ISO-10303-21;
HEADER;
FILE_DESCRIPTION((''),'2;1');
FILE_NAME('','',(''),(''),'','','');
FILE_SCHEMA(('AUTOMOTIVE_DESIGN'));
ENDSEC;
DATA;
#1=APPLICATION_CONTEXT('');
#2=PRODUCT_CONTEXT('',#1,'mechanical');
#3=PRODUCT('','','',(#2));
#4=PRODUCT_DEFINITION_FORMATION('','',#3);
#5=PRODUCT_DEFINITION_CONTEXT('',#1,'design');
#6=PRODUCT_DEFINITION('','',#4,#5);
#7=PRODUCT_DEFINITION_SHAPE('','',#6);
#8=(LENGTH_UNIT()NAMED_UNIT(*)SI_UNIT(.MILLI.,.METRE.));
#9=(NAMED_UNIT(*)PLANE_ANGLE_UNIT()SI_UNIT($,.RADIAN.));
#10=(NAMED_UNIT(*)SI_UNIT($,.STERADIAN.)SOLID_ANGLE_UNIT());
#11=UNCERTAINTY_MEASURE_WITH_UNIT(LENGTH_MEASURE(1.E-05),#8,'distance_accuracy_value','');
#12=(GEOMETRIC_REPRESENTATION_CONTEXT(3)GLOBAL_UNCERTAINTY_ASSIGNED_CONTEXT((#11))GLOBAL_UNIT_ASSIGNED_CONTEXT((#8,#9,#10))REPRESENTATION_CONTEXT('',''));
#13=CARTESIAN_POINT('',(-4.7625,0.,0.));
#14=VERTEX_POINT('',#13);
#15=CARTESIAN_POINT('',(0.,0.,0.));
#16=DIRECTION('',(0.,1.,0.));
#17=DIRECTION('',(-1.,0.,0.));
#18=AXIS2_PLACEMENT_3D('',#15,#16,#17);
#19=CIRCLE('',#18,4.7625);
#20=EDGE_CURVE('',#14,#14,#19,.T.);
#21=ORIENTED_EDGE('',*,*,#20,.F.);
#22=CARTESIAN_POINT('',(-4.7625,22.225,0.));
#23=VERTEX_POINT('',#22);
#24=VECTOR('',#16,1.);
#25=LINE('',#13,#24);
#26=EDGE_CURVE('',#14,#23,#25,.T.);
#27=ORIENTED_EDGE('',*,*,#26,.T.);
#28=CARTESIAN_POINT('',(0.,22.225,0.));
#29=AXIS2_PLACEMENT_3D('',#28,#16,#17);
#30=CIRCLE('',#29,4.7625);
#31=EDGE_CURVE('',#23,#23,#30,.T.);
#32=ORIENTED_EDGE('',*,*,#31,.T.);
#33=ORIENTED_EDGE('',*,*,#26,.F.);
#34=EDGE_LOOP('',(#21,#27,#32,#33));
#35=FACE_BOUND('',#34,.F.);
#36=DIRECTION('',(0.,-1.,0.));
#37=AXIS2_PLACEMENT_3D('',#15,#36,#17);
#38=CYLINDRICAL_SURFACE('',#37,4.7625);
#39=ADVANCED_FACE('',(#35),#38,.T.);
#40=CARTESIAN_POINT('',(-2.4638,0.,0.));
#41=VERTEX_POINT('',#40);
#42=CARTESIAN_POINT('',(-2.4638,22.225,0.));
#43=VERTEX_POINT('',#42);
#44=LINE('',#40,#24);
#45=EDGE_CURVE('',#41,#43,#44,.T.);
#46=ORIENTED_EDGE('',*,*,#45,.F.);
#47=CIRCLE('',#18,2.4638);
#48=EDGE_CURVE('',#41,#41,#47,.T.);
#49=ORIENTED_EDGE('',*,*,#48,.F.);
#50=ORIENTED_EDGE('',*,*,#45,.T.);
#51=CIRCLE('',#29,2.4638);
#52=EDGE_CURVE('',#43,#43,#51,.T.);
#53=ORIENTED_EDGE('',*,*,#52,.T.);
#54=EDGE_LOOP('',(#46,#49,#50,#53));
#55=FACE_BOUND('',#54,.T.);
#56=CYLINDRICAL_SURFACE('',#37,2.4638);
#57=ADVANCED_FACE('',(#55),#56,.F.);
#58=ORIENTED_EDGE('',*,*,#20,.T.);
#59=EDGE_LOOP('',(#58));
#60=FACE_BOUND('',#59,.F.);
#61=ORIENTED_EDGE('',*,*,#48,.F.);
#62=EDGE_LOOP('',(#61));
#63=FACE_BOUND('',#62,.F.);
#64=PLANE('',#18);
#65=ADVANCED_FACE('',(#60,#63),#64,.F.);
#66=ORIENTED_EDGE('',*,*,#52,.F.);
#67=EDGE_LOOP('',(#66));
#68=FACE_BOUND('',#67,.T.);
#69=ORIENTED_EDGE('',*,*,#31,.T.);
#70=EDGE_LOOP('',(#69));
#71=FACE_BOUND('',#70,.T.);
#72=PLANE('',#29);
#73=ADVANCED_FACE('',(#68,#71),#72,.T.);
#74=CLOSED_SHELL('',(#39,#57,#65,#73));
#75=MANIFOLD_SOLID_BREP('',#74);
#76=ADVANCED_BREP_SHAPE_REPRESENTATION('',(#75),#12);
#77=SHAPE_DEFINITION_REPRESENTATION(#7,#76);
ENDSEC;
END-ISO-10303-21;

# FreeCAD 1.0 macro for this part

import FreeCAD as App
import Part
import Sketcher
Q = App.Units.Quantity

doc = App.newDocument("Part")
body = doc.addObject("PartDesign::Body", "Body")

# Sketch on XZ plane
sketch1 = body.newObject("Sketcher::SketchObject", "Sketch")
sketch1.AttachmentSupport = (doc.getObject("XZ_Plane"), [""])
sketch1.MapMode = "FlatFace"
sketch1.addGeometry(Part.Circle(App.Vector(0, 0, 0), App.Vector(0, 0, 1), 4.8), False)
sketch1.addGeometry(Part.Circle(App.Vector(0, 0, 0), App.Vector(0, 0, 1), 2.5), False)
sketch1.addConstraint(Sketcher.Constraint("Coincident", 0, 3, -1, 1))
sketch1.addConstraint(Sketcher.Constraint("Coincident", 1, 3, -1, 1))
sketch1.addConstraint(Sketcher.Constraint("Diameter", 0, Q("0.375 in")))
sketch1.addConstraint(Sketcher.Constraint("Diameter", 1, Q("0.194 in")))
pad1 = body.newObject("PartDesign::Pad", "Pad")
pad1.Profile = sketch1
pad1.Length = Q("0.875 in")
pad1.Reversed = True

doc.recompute()
